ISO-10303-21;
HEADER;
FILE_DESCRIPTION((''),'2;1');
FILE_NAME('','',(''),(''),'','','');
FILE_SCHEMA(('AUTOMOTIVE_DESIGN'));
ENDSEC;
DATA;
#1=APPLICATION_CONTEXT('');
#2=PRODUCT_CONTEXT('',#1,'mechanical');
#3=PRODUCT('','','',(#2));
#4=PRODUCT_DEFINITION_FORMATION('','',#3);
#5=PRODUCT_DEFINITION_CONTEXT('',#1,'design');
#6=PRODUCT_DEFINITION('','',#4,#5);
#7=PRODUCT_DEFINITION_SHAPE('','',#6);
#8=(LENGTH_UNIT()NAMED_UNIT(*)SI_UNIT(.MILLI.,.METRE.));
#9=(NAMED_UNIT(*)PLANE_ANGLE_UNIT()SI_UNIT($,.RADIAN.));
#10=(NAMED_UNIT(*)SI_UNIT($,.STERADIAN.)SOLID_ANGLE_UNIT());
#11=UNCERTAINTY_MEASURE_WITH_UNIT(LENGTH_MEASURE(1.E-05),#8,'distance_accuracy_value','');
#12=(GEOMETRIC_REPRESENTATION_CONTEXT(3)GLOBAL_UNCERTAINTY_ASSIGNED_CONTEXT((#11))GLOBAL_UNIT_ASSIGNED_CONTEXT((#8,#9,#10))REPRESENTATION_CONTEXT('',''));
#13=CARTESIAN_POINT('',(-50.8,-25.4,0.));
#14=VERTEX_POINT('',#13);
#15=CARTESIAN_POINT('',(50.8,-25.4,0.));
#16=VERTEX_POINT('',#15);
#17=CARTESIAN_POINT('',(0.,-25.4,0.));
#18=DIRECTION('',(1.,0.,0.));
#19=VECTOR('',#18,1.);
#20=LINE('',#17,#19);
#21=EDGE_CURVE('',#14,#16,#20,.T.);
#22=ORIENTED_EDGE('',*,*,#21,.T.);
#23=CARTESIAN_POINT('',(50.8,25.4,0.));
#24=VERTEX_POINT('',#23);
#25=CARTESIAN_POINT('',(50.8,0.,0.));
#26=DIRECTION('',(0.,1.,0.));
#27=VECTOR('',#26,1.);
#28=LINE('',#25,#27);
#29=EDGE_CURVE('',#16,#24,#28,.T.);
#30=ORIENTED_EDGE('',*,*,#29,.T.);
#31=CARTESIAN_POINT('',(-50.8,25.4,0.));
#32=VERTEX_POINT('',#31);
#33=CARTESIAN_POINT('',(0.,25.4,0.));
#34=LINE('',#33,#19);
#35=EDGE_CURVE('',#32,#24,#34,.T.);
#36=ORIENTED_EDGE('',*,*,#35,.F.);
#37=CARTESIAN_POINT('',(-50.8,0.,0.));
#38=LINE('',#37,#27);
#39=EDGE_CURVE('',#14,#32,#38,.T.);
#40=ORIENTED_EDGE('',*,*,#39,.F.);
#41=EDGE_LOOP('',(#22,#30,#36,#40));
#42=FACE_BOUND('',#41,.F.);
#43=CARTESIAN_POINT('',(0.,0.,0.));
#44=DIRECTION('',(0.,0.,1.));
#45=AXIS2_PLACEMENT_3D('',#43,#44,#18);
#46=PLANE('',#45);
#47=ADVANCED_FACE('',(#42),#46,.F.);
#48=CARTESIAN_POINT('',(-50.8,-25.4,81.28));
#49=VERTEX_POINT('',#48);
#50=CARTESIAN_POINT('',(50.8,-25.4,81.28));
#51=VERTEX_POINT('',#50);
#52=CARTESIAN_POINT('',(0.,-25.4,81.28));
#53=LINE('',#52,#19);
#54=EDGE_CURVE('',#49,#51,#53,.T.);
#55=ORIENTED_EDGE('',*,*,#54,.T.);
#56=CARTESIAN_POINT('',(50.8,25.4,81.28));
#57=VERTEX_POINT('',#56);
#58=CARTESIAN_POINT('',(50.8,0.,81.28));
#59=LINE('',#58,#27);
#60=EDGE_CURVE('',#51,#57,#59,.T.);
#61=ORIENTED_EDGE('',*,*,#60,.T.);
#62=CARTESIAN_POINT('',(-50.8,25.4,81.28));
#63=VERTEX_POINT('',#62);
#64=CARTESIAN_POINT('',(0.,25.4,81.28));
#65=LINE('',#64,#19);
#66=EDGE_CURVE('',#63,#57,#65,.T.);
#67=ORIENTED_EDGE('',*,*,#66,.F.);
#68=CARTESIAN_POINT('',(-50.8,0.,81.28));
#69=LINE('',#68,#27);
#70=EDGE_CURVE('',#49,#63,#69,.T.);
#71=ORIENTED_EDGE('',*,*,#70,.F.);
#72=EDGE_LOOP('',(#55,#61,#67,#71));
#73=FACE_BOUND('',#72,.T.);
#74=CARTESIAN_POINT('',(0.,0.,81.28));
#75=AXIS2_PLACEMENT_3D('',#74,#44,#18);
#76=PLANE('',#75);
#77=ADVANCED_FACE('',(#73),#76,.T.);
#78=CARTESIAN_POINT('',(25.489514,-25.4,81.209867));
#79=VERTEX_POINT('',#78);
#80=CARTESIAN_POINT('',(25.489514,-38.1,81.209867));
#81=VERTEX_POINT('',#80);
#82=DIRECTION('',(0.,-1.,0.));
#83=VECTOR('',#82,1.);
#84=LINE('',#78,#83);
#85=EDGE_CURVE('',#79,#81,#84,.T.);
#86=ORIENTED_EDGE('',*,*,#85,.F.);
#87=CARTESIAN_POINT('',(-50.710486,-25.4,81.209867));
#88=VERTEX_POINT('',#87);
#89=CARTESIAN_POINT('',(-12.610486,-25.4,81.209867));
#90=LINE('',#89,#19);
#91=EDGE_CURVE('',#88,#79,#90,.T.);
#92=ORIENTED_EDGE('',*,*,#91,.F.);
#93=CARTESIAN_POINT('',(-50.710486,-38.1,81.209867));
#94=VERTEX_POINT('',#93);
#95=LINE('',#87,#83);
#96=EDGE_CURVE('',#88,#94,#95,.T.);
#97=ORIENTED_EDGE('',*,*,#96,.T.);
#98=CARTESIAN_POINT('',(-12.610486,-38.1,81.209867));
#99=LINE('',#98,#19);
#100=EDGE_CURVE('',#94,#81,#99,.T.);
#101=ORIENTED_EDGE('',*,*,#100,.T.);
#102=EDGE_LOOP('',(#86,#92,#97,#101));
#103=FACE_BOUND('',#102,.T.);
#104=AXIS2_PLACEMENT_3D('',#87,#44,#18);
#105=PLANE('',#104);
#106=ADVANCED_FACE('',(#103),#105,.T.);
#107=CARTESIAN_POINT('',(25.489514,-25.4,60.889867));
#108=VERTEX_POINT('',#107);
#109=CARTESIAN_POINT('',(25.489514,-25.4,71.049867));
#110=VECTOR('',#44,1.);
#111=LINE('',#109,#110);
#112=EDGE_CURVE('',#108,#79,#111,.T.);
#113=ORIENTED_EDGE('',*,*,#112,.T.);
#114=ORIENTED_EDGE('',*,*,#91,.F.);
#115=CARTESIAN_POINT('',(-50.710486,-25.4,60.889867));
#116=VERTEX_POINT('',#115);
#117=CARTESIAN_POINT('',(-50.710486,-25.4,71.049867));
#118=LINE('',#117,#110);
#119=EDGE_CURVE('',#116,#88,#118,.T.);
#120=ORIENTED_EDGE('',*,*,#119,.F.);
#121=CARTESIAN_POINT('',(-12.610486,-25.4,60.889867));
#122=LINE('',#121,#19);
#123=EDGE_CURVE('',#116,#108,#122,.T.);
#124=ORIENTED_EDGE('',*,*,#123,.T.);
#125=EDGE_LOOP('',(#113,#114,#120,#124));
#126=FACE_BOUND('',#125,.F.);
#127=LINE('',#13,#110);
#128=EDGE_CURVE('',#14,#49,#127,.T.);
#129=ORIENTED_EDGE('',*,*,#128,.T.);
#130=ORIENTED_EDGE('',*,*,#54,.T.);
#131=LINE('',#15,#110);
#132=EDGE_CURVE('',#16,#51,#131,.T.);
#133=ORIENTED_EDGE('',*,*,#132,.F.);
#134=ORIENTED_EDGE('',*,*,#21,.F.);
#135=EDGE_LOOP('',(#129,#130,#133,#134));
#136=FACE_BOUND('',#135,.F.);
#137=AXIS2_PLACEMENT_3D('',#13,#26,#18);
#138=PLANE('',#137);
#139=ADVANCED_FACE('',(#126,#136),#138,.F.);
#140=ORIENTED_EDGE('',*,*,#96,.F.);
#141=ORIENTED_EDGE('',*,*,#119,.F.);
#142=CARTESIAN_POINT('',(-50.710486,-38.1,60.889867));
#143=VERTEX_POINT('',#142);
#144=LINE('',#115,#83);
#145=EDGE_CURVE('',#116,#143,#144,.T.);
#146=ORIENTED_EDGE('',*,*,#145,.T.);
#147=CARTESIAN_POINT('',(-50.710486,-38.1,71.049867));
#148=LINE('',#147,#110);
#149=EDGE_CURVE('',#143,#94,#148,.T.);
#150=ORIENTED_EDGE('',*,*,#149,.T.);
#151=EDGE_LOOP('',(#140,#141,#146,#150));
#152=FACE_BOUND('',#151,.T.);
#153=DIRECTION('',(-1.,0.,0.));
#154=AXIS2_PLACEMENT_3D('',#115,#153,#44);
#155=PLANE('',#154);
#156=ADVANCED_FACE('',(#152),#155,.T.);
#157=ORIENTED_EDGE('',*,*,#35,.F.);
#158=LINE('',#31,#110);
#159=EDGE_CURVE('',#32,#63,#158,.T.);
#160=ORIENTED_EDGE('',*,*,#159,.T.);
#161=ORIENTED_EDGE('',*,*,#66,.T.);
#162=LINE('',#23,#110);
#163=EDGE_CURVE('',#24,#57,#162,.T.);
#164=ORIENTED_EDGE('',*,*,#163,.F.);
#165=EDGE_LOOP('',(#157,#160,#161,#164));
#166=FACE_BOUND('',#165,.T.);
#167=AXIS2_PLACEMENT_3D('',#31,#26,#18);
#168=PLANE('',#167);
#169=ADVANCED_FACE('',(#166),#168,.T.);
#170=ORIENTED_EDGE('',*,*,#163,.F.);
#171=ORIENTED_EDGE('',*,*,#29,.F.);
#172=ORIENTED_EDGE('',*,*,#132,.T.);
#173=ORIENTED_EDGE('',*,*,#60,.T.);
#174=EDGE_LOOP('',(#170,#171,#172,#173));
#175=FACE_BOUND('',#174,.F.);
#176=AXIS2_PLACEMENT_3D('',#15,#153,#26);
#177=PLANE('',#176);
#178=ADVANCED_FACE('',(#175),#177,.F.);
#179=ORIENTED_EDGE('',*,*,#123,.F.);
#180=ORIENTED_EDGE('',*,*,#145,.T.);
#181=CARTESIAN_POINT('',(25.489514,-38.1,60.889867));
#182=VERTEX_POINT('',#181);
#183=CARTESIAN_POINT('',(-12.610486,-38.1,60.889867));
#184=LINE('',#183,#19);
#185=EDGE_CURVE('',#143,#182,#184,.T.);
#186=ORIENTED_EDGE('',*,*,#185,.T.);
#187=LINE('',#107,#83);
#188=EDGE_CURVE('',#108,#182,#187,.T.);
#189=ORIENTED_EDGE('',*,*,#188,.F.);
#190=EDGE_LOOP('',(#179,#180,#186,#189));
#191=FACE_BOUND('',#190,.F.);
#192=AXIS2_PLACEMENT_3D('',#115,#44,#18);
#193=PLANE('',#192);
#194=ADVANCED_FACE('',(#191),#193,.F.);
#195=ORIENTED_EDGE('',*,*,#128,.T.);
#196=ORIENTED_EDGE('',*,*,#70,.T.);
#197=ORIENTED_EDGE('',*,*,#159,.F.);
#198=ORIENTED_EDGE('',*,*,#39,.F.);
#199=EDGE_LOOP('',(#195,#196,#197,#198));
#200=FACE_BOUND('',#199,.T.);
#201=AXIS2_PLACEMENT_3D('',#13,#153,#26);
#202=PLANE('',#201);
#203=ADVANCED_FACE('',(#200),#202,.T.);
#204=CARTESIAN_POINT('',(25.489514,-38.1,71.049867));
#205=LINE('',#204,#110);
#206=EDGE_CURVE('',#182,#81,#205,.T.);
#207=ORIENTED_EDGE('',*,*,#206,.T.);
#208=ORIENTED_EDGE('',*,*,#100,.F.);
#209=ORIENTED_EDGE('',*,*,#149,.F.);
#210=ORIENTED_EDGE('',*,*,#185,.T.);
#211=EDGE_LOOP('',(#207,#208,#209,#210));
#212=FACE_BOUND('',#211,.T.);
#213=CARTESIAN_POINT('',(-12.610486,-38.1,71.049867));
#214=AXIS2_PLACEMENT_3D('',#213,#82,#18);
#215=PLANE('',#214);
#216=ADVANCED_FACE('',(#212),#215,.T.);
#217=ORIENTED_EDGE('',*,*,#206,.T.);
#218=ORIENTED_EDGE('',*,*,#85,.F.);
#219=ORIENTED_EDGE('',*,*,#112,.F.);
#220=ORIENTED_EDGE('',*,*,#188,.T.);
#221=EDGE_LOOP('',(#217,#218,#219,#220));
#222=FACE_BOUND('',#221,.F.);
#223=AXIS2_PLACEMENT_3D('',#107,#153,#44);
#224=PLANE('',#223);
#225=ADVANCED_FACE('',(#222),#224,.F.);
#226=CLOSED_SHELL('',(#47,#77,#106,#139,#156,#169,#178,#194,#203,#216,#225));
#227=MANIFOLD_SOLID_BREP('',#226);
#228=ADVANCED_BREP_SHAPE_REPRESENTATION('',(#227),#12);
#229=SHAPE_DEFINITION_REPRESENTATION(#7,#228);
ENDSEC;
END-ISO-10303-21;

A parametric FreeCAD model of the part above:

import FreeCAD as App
import Part
import Sketcher

V = App.Vector
Q = App.Units.Quantity


def add_polygon(sketch, points):
    """Adds a closed chain of lines whose ends are joined by coincident constraints."""
    first, n = sketch.GeometryCount, len(points)
    for a, b in zip(points, points[1:] + points[:1]):
        sketch.addGeometry(Part.LineSegment(App.Vector(*a, 0), App.Vector(*b, 0)), False)
    for i in range(n):
        sketch.addConstraint(Sketcher.Constraint("Coincident", first + i, 2, first + (i + 1) % n, 1))

doc = App.newDocument("Part")
body = doc.addObject("PartDesign::Body", "Body")

# Sketch on XY plane
sketch1 = body.newObject("Sketcher::SketchObject", "Sketch")
sketch1.AttachmentSupport = (doc.getObject("XY_Plane"), [""])
sketch1.MapMode = "FlatFace"
add_polygon(sketch1, [(-51, 25), (-51, -25), (51, -25), (51, 25)])  # lines 0-3
sketch1.addConstraint([
    Sketcher.Constraint("Vertical", 0),
    Sketcher.Constraint("Horizontal", 1),
    Sketcher.Constraint("Vertical", 2),
    Sketcher.Constraint("Horizontal", 3),
    Sketcher.Constraint("Symmetric", 0, 2, 2, 2, -1, 1),
    Sketcher.Constraint("DistanceX", 1, 1, 1, 2, Q("4 in")),
    Sketcher.Constraint("DistanceY", 0, 2, 0, 1, Q("2 in")),
])
pad1 = body.newObject("PartDesign::Pad", "Pad")
pad1.Profile = sketch1
pad1.Length = Q("3.2 in")

# Sketch on XZ plane
sketch2 = body.newObject("Sketcher::SketchObject", "Sketch001")
sketch2.AttachmentSupport = (doc.getObject("XZ_Plane"), [""])
sketch2.MapMode = "FlatFace"
sketch2.AttachmentOffset = App.Placement(V(0, 0, 1 * 25.4), App.Rotation())
add_polygon(sketch2, [(-51, 81), (-51, 61), (25, 61), (25, 81)])  # lines 0-3
sketch2.addConstraint([
    Sketcher.Constraint("Vertical", 0),
    Sketcher.Constraint("Horizontal", 1),
    Sketcher.Constraint("Vertical", 2),
    Sketcher.Constraint("Horizontal", 3),
    Sketcher.Constraint("DistanceX", 1, 1, 1, 2, Q("3 in")),
    Sketcher.Constraint("DistanceY", 0, 2, 0, 1, Q("0.8 in")),
    Sketcher.Constraint("DistanceX", 0, 2, -1, 1, 50.710486),
    Sketcher.Constraint("DistanceY", -1, 1, 0, 2, 60.889867),
])
pad2 = body.newObject("PartDesign::Pad", "Pad001")
pad2.Profile = sketch2
pad2.Length = Q("0.5 in")

doc.recompute()
